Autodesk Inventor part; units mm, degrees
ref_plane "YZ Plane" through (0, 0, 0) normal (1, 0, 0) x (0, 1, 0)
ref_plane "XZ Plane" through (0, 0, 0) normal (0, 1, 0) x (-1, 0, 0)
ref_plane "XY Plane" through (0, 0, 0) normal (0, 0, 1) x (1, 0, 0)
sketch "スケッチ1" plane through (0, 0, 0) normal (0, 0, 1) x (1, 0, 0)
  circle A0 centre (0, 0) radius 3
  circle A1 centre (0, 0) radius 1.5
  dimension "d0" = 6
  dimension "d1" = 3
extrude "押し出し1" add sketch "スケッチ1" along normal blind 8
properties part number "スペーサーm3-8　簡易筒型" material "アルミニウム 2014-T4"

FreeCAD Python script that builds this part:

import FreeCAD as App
import Part
import Sketcher
Q = App.Units.Quantity

doc = App.newDocument("Part")
params = doc.addObject("Spreadsheet::Sheet", "Params")
for row, (alias, value) in enumerate([
    ("sketch1_diameter", "6 mm"),
    ("sketch1_diameter2", "3 mm"),
    ("pad1_length", "8 mm"),
], start=1):
    params.set(f"A{row}", alias)
    params.set(f"B{row}", "=" + value)
    params.setAlias(f"B{row}", alias)

body = doc.addObject("PartDesign::Body", "Body")

# Sketch on XY plane
sketch1 = body.newObject("Sketcher::SketchObject", "Sketch")
sketch1.AttachmentSupport = (doc.getObject("XY_Plane"), [""])
sketch1.MapMode = "FlatFace"
sketch1.addGeometry(Part.Circle(App.Vector(0, 0, 0), App.Vector(0, 0, 1), 3), False)
sketch1.addGeometry(Part.Circle(App.Vector(0, 0, 0), App.Vector(0, 0, 1), 1.5), False)
sketch1.addConstraint(Sketcher.Constraint("Coincident", 0, 3, -1, 1))
sketch1.addConstraint(Sketcher.Constraint("Coincident", 1, 3, -1, 1))
sketch1.addConstraint(Sketcher.Constraint("Diameter", 0, Q("6 mm")))
sketch1.addConstraint(Sketcher.Constraint("Diameter", 1, Q("3 mm")))
sketch1.setExpression("Constraints[2]", "Params.sketch1_diameter")
sketch1.setExpression("Constraints[3]", "Params.sketch1_diameter2")
pad1 = body.newObject("PartDesign::Pad", "Pad")
pad1.Profile = sketch1
pad1.setExpression("Length", "Params.pad1_length")

doc.recompute()
